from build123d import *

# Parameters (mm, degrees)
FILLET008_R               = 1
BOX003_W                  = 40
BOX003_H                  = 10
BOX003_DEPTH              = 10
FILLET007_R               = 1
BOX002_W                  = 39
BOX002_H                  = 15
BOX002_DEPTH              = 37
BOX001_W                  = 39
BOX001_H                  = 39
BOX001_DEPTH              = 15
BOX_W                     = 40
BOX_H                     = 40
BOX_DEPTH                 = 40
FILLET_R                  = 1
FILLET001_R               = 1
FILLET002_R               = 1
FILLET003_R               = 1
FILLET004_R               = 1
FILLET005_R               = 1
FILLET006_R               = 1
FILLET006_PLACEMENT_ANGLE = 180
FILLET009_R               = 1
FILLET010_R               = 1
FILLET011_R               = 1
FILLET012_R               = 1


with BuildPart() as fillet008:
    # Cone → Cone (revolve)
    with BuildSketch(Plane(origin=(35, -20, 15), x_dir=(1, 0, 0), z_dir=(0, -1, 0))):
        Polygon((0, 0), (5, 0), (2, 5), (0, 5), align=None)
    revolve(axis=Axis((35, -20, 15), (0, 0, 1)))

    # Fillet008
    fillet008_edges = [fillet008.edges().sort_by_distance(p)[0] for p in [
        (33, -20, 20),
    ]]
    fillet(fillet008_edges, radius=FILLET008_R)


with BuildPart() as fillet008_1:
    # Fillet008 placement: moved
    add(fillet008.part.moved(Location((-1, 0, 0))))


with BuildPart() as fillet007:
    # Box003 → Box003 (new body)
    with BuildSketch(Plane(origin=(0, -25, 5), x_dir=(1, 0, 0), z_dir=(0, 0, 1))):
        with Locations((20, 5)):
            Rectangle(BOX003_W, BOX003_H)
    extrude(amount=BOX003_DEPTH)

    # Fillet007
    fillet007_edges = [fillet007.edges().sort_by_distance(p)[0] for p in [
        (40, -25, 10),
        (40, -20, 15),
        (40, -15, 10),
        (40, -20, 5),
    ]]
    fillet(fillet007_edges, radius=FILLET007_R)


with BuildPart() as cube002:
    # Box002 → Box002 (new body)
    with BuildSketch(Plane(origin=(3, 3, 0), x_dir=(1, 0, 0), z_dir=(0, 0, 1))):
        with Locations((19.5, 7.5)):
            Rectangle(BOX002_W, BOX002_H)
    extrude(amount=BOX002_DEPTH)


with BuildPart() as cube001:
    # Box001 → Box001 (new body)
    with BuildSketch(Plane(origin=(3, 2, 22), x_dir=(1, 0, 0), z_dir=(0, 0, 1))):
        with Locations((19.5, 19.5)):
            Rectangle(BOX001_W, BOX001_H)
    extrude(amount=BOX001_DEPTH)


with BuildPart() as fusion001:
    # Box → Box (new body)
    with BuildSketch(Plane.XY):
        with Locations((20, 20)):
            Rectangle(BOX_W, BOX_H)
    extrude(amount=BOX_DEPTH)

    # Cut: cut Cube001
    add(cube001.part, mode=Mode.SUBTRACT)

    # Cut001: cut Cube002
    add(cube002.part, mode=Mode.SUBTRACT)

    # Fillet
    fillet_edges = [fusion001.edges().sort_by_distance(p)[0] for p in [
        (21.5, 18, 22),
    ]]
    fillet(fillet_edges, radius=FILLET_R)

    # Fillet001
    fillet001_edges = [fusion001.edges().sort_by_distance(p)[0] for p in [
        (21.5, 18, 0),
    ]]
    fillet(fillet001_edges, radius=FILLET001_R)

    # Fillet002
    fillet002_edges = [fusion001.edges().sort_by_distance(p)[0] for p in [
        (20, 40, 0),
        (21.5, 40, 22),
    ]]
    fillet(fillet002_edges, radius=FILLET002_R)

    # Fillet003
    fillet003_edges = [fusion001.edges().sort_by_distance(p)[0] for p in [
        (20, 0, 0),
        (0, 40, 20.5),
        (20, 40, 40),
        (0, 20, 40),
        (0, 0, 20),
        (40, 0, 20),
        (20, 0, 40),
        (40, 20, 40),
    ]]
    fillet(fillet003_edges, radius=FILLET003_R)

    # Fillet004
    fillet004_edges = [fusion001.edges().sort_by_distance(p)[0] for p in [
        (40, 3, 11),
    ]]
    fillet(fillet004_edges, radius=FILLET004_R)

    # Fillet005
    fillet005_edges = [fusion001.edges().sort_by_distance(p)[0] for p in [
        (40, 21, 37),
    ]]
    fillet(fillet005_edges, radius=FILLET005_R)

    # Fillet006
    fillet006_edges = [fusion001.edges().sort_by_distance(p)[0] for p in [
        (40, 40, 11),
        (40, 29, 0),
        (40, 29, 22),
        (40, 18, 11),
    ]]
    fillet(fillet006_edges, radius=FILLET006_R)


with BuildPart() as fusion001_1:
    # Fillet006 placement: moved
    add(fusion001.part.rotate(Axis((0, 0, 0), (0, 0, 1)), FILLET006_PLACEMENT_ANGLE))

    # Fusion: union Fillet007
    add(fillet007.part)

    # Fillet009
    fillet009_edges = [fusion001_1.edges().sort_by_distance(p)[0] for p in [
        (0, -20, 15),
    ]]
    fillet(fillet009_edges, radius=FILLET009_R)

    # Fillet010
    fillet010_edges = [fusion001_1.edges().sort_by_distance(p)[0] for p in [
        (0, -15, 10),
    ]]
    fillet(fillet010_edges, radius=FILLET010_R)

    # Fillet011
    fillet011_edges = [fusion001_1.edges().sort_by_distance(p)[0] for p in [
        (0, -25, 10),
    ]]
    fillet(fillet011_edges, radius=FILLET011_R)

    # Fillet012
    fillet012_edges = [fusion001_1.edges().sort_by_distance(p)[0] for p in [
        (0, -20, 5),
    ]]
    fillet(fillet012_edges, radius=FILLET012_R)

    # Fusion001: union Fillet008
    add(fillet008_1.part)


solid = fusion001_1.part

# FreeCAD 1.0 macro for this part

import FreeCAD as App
import Part
import Sketcher
from FreeCAD import Vector
Q = App.Units.Quantity


def edges_at(feature, points):
    """Names of the edges that pass closest to the given points."""
    edges = feature.Shape.Edges
    near = lambda p: min(range(len(edges)), key=lambda i: edges[i].distToShape(Part.Vertex(*p))[0])
    return sorted({f"Edge{near(p) + 1}" for p in points})


def add_polygon(sketch, points):
    """Adds a closed chain of lines whose ends are joined by coincident constraints."""
    first, n = sketch.GeometryCount, len(points)
    for a, b in zip(points, points[1:] + points[:1]):
        sketch.addGeometry(Part.LineSegment(App.Vector(*a, 0), App.Vector(*b, 0)), False)
    for i in range(n):
        sketch.addConstraint(Sketcher.Constraint("Coincident", first + i, 2, first + (i + 1) % n, 1))

doc = App.newDocument("Part")
params = doc.addObject("Spreadsheet::Sheet", "Params")
for row, (alias, value) in enumerate([
    ("sketch1_width", "5 mm"),
    ("sketch1_width2", "2 mm"),
    ("revolution_angle", "360 deg"),
    ("fillet_radius", "1 mm"),
    ("sketch2_width", "40 mm"),
    ("sketch2_height", "10 mm"),
    ("pad1_length", "10 mm"),
    ("fillet2_radius", "1 mm"),
    ("sketch3_width", "39 mm"),
    ("sketch3_height", "15 mm"),
    ("pad2_length", "37 mm"),
    ("sketch4_width", "39 mm"),
    ("pad3_length", "15 mm"),
    ("sketch5_width", "40 mm"),
    ("pad4_length", "40 mm"),
    ("fillet3_radius", "1 mm"),
    ("fillet4_radius", "1 mm"),
    ("fillet5_radius", "1 mm"),
    ("fillet6_radius", "1 mm"),
    ("fillet7_radius", "1 mm"),
    ("fillet8_radius", "1 mm"),
    ("fillet9_radius", "1 mm"),
    ("fillet10_radius", "1 mm"),
    ("fillet11_radius", "1 mm"),
    ("fillet12_radius", "1 mm"),
    ("fillet13_radius", "1 mm"),
], start=1):
    params.set(f"A{row}", alias)
    params.set(f"B{row}", "=" + value)
    params.setAlias(f"B{row}", alias)

body = doc.addObject("PartDesign::Body", "Body")

sketch1 = body.newObject("Sketcher::SketchObject", "Sketch")
sketch1.AttachmentSupport = (doc.getObject("XZ_Plane"), [""])
sketch1.MapMode = "FlatFace"
sketch1.AttachmentOffset = App.Placement(Vector(0, 0, 20), App.Rotation())
add_polygon(sketch1, [(35, 15), (40, 15), (37, 20), (35, 20)])
sketch1.addGeometry(Part.LineSegment(Vector(35, 15, 0), Vector(35, 20, 0)), True)
sketch1.addConstraint([
    Sketcher.Constraint("Horizontal", 0),
    Sketcher.Constraint("Horizontal", 2),
    Sketcher.Constraint("Vertical", 3),
    Sketcher.Constraint("Vertical", 4),
    Sketcher.Constraint("Coincident", 4, 1, 3, 2),
    Sketcher.Constraint("Horizontal", 1, 2, 4, 2),
    Sketcher.Constraint("Equal", 0, 3),
    Sketcher.Constraint("DistanceX", 0, 1, 0, 2, Q("5 mm")),
    Sketcher.Constraint("DistanceX", 2, 2, 2, 1, Q("2 mm")),
    Sketcher.Constraint("DistanceX", -1, 1, 0, 2, Q("40 mm")),
    Sketcher.Constraint("DistanceY", -1, 1, 0, 2, Q("15 mm")),
])
sketch1.setExpression("Constraints[11]", "Params.sketch1_width")
sketch1.setExpression("Constraints[12]", "Params.sketch1_width2")
revolution = body.newObject("PartDesign::Revolution", "Revolution")
revolution.Profile = sketch1
revolution.ReferenceAxis = (sketch1, ["Axis0"])
revolution.setExpression("Angle", "Params.revolution_angle")
doc.recompute()

fillet = body.newObject("PartDesign::Fillet", "Fillet")
fillet.Base = (revolution, edges_at(revolution, [(33, -20, 20)]))
fillet.setExpression("Radius", "Params.fillet_radius")
body2 = doc.addObject("PartDesign::Body", "Body001")
doc.recompute()

body.Placement = App.Placement(Vector(-1, 0, 0), App.Rotation(Vector(0, 0, 1), 0))
boolean = body2.newObject("PartDesign::Boolean", "Boolean")
boolean.Type = "Fuse"
boolean.addObjects([body])
body3 = doc.addObject("PartDesign::Body", "Body002")

sketch2 = body3.newObject("Sketcher::SketchObject", "Sketch001")
sketch2.AttachmentSupport = (doc.getObject("XY_Plane002"), [""])
sketch2.MapMode = "FlatFace"
sketch2.AttachmentOffset = App.Placement(Vector(0, 0, 5), App.Rotation())
add_polygon(sketch2, [(0, -15), (0, -25), (40, -25), (40, -15)])
sketch2.addConstraint([
    Sketcher.Constraint("Vertical", 0),
    Sketcher.Constraint("Horizontal", 1),
    Sketcher.Constraint("Vertical", 2),
    Sketcher.Constraint("Horizontal", 3),
    Sketcher.Constraint("PointOnObject", 0, 2, -2),
    Sketcher.Constraint("DistanceX", 1, 1, 1, 2, Q("40 mm")),
    Sketcher.Constraint("DistanceY", 0, 2, 0, 1, Q("10 mm")),
    Sketcher.Constraint("DistanceY", 0, 2, -1, 1, Q("25 mm")),
])
sketch2.setExpression("Constraints[9]", "Params.sketch2_width")
sketch2.setExpression("Constraints[10]", "Params.sketch2_height")
pad1 = body3.newObject("PartDesign::Pad", "Pad")
pad1.Profile = sketch2
pad1.setExpression("Length", "Params.pad1_length")
doc.recompute()

fillet2 = body3.newObject("PartDesign::Fillet", "Fillet001")
fillet2.Base = (pad1, edges_at(pad1, [
    (40, -25, 10),
    (40, -20, 15),
    (40, -15, 10),
    (40, -20, 5),
]))
fillet2.setExpression("Radius", "Params.fillet2_radius")
body4 = doc.addObject("PartDesign::Body", "Body003")

sketch3 = body4.newObject("Sketcher::SketchObject", "Sketch002")
sketch3.AttachmentSupport = (doc.getObject("XY_Plane003"), [""])
sketch3.MapMode = "FlatFace"
add_polygon(sketch3, [(3, 18), (3, 3), (42, 3), (42, 18)])
sketch3.addConstraint([
    Sketcher.Constraint("Vertical", 0),
    Sketcher.Constraint("Horizontal", 1),
    Sketcher.Constraint("Vertical", 2),
    Sketcher.Constraint("Horizontal", 3),
    Sketcher.Constraint("DistanceX", 1, 1, 1, 2, Q("39 mm")),
    Sketcher.Constraint("DistanceY", 0, 2, 0, 1, Q("15 mm")),
    Sketcher.Constraint("DistanceX", -1, 1, 0, 2, Q("3 mm")),
    Sketcher.Constraint("DistanceY", -1, 1, 0, 2, Q("3 mm")),
])
sketch3.setExpression("Constraints[8]", "Params.sketch3_width")
sketch3.setExpression("Constraints[9]", "Params.sketch3_height")
pad2 = body4.newObject("PartDesign::Pad", "Pad001")
pad2.Profile = sketch3
pad2.setExpression("Length", "Params.pad2_length")
body5 = doc.addObject("PartDesign::Body", "Body004")

sketch4 = body5.newObject("Sketcher::SketchObject", "Sketch003")
sketch4.AttachmentSupport = (doc.getObject("XY_Plane004"), [""])
sketch4.MapMode = "FlatFace"
sketch4.AttachmentOffset = App.Placement(Vector(0, 0, 22), App.Rotation())
add_polygon(sketch4, [(3, 41), (3, 2), (42, 2), (42, 41)])
sketch4.addConstraint([
    Sketcher.Constraint("Vertical", 0),
    Sketcher.Constraint("Horizontal", 1),
    Sketcher.Constraint("Vertical", 2),
    Sketcher.Constraint("Horizontal", 3),
    Sketcher.Constraint("Equal", 3, 0),
    Sketcher.Constraint("DistanceX", 1, 1, 1, 2, Q("39 mm")),
    Sketcher.Constraint("DistanceX", -1, 1, 0, 2, Q("3 mm")),
    Sketcher.Constraint("DistanceY", -1, 1, 0, 2, Q("2 mm")),
])
sketch4.setExpression("Constraints[9]", "Params.sketch4_width")
pad3 = body5.newObject("PartDesign::Pad", "Pad002")
pad3.Profile = sketch4
pad3.setExpression("Length", "Params.pad3_length")
body6 = doc.addObject("PartDesign::Body", "Body005")

sketch5 = body6.newObject("Sketcher::SketchObject", "Sketch004")
sketch5.AttachmentSupport = (doc.getObject("XY_Plane005"), [""])
sketch5.MapMode = "FlatFace"
add_polygon(sketch5, [(0, 40), (0, 0), (40, 0), (40, 40)])
sketch5.addConstraint([
    Sketcher.Constraint("Vertical", 0),
    Sketcher.Constraint("Horizontal", 1),
    Sketcher.Constraint("Vertical", 2),
    Sketcher.Constraint("Horizontal", 3),
    Sketcher.Constraint("Coincident", 0, 2, -1, 1),
    Sketcher.Constraint("Equal", 3, 0),
    Sketcher.Constraint("DistanceX", 1, 1, 1, 2, Q("40 mm")),
])
sketch5.setExpression("Constraints[10]", "Params.sketch5_width")
pad4 = body6.newObject("PartDesign::Pad", "Pad003")
pad4.Profile = sketch5
pad4.setExpression("Length", "Params.pad4_length")
doc.recompute()

boolean2 = body6.newObject("PartDesign::Boolean", "Boolean001")
boolean2.Type = "Cut"
boolean2.addObjects([body5])
doc.recompute()

boolean3 = body6.newObject("PartDesign::Boolean", "Boolean002")
boolean3.Type = "Cut"
boolean3.addObjects([body4])
doc.recompute()

fillet3 = body6.newObject("PartDesign::Fillet", "Fillet002")
fillet3.Base = (boolean3, edges_at(boolean3, [(21.5, 18, 22)]))
fillet3.setExpression("Radius", "Params.fillet3_radius")
doc.recompute()

fillet4 = body6.newObject("PartDesign::Fillet", "Fillet003")
fillet4.Base = (fillet3, edges_at(fillet3, [(21.5, 18, 0)]))
fillet4.setExpression("Radius", "Params.fillet4_radius")
doc.recompute()

fillet5 = body6.newObject("PartDesign::Fillet", "Fillet004")
fillet5.Base = (fillet4, edges_at(fillet4, [(20, 40, 0), (21.5, 40, 22)]))
fillet5.setExpression("Radius", "Params.fillet5_radius")
doc.recompute()

fillet6 = body6.newObject("PartDesign::Fillet", "Fillet005")
fillet6.Base = (fillet5, edges_at(fillet5, [
    (20, 0, 0),
    (0, 40, 20.5),
    (20, 40, 40),
    (0, 20, 40),
    (0, 0, 20),
    (40, 0, 20),
    (20, 0, 40),
    (40, 20, 40),
]))
fillet6.setExpression("Radius", "Params.fillet6_radius")
doc.recompute()

fillet7 = body6.newObject("PartDesign::Fillet", "Fillet006")
fillet7.Base = (fillet6, edges_at(fillet6, [(40, 3, 11)]))
fillet7.setExpression("Radius", "Params.fillet7_radius")
doc.recompute()

fillet8 = body6.newObject("PartDesign::Fillet", "Fillet007")
fillet8.Base = (fillet7, edges_at(fillet7, [(40, 21, 37)]))
fillet8.setExpression("Radius", "Params.fillet8_radius")
doc.recompute()

fillet9 = body6.newObject("PartDesign::Fillet", "Fillet008")
fillet9.Base = (fillet8, edges_at(fillet8, [
    (40, 40, 11),
    (40, 29, 0),
    (40, 29, 22),
    (40, 18, 11),
]))
fillet9.setExpression("Radius", "Params.fillet9_radius")
body7 = doc.addObject("PartDesign::Body", "Body006")
doc.recompute()

body6.Placement = App.Placement(Vector(0, 0, 0), App.Rotation(Vector(0, 0, 1), 180))
boolean4 = body7.newObject("PartDesign::Boolean", "Boolean003")
boolean4.Type = "Fuse"
boolean4.addObjects([body6])
doc.recompute()

boolean5 = body7.newObject("PartDesign::Boolean", "Boolean004")
boolean5.Type = "Fuse"
boolean5.addObjects([body3])
doc.recompute()

fillet10 = body7.newObject("PartDesign::Fillet", "Fillet009")
fillet10.Base = (boolean5, edges_at(boolean5, [(0, -20, 15)]))
fillet10.setExpression("Radius", "Params.fillet10_radius")
doc.recompute()

fillet11 = body7.newObject("PartDesign::Fillet", "Fillet010")
fillet11.Base = (fillet10, edges_at(fillet10, [(0, -15, 10.5)]))
fillet11.setExpression("Radius", "Params.fillet11_radius")
doc.recompute()

fillet12 = body7.newObject("PartDesign::Fillet", "Fillet011")
fillet12.Base = (fillet11, edges_at(fillet11, [(0, -25, 10.5)]))
fillet12.setExpression("Radius", "Params.fillet12_radius")
doc.recompute()

fillet13 = body7.newObject("PartDesign::Fillet", "Fillet012")
fillet13.Base = (fillet12, edges_at(fillet12, [(0, -20, 5)]))
fillet13.setExpression("Radius", "Params.fillet13_radius")
doc.recompute()

boolean6 = body7.newObject("PartDesign::Boolean", "Boolean005")
boolean6.Type = "Fuse"
boolean6.addObjects([body2])

doc.recompute()
